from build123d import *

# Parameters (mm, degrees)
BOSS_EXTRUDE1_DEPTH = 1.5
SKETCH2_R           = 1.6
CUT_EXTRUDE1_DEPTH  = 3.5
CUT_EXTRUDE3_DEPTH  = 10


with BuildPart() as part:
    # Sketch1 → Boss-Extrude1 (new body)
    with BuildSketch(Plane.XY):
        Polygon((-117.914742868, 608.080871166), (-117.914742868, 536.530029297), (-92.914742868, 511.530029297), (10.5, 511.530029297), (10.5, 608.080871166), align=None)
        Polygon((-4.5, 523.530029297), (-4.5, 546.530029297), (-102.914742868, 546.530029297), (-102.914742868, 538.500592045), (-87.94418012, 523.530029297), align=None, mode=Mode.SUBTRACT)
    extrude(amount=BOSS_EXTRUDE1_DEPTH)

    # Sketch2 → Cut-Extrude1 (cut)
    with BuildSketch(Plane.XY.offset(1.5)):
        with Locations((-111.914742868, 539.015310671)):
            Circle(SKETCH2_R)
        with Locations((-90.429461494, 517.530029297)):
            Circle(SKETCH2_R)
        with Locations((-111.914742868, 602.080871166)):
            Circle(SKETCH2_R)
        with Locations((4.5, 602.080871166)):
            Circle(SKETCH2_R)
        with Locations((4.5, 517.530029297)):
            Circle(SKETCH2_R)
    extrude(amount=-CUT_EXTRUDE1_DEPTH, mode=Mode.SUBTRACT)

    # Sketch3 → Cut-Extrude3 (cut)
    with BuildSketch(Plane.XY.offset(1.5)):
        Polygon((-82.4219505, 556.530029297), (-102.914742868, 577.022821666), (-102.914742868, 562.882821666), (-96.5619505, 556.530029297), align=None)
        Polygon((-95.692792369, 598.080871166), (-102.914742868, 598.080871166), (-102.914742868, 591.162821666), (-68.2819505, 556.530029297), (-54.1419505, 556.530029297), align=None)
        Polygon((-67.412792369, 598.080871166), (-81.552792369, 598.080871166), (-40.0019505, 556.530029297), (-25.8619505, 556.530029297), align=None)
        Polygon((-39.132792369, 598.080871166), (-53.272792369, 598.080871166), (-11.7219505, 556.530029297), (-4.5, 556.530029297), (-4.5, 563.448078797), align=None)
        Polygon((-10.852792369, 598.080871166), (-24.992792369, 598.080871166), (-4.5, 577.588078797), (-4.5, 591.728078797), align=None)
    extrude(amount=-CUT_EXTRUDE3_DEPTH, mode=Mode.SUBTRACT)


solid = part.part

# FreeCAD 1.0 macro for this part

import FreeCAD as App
import Part
import Sketcher
from FreeCAD import Vector
Q = App.Units.Quantity


def add_polygon(sketch, points):
    """Adds a closed chain of lines whose ends are joined by coincident constraints."""
    first, n = sketch.GeometryCount, len(points)
    for a, b in zip(points, points[1:] + points[:1]):
        sketch.addGeometry(Part.LineSegment(App.Vector(*a, 0), App.Vector(*b, 0)), False)
    for i in range(n):
        sketch.addConstraint(Sketcher.Constraint("Coincident", first + i, 2, first + (i + 1) % n, 1))

doc = App.newDocument("Part")
body = doc.addObject("PartDesign::Body", "Body")

sketch1 = body.newObject("Sketcher::SketchObject", "Sketch")
sketch1.AttachmentSupport = (doc.getObject("XY_Plane"), [""])
sketch1.MapMode = "FlatFace"
add_polygon(sketch1, [(-118, 608), (-118, 537), (-93, 512), (10, 512), (10, 608)])
add_polygon(sketch1, [(-4, 547), (-4, 524), (-88, 524), (-103, 539), (-103, 547)])
sketch1.addConstraint(Sketcher.Constraint("Vertical", 0))
sketch1.addConstraint(Sketcher.Constraint("Horizontal", 2))
sketch1.addConstraint(Sketcher.Constraint("Vertical", 3))
sketch1.addConstraint(Sketcher.Constraint("Horizontal", 4))
sketch1.addConstraint(Sketcher.Constraint("Vertical", 5))
sketch1.addConstraint(Sketcher.Constraint("Horizontal", 6))
sketch1.addConstraint(Sketcher.Constraint("Vertical", 8))
sketch1.addConstraint(Sketcher.Constraint("Horizontal", 9))
sketch1.addConstraint(Sketcher.Constraint("Parallel", 1, 7))
sketch1.addConstraint(Sketcher.Constraint("DistanceY", 5, 2, 5, 1, 23.0))
sketch1.addConstraint(Sketcher.Constraint("Angle", 1, Q("-45 deg")))
sketch1.addConstraint(Sketcher.Constraint("DistanceX", 0, 2, 1, 2, 25.0))
sketch1.addConstraint(Sketcher.Constraint("DistanceX", 5, 2, 2, 2, 15.0))
sketch1.addConstraint(Sketcher.Constraint("DistanceY", 2, 2, 5, 2, 12.0))
sketch1.addConstraint(Sketcher.Constraint("DistanceX", 0, 2, 7, 2, 15.0))
sketch1.addConstraint(Sketcher.Constraint("DistanceX", -1, 1, 2, 2, 10.5))
sketch1.addConstraint(Sketcher.Constraint("DistanceX", 6, 2, 6, 1, 83.44418))
sketch1.addConstraint(Sketcher.Constraint("DistanceY", 0, 2, 0, 1, 71.550842))
sketch1.addConstraint(Sketcher.Constraint("DistanceX", 2, 1, 2, 2, 103.414743))
sketch1.addConstraint(Sketcher.Constraint("DistanceY", -1, 1, 0, 2, 536.530029))
pad1 = body.newObject("PartDesign::Pad", "Pad")
pad1.Profile = sketch1
pad1.Length = 1.5

sketch2 = body.newObject("Sketcher::SketchObject", "Sketch001")
sketch2.AttachmentSupport = (doc.getObject("XY_Plane"), [""])
sketch2.MapMode = "FlatFace"
sketch2.AttachmentOffset = App.Placement(Vector(0, 0, 1.5), App.Rotation())
sketch2.addGeometry(Part.Circle(Vector(-111.9, 539, 0), Vector(0, 0, 1), 1.6), False)
sketch2.addGeometry(Part.Circle(Vector(-90.4, 517.5, 0), Vector(0, 0, 1), 1.6), False)
sketch2.addGeometry(Part.Circle(Vector(-111.9, 602.1, 0), Vector(0, 0, 1), 1.6), False)
sketch2.addGeometry(Part.Circle(Vector(4.5, 602.1, 0), Vector(0, 0, 1), 1.6), False)
sketch2.addGeometry(Part.Circle(Vector(4.5, 517.5, 0), Vector(0, 0, 1), 1.6), False)
sketch2.addConstraint(Sketcher.Constraint("Equal", 0, 1))
sketch2.addConstraint(Sketcher.Constraint("Equal", 1, 2))
sketch2.addConstraint(Sketcher.Constraint("Equal", 2, 3))
sketch2.addConstraint(Sketcher.Constraint("Equal", 3, 4))
sketch2.addConstraint(Sketcher.Constraint("Horizontal", 2, 3, 3, 3))
sketch2.addConstraint(Sketcher.Constraint("Horizontal", 1, 3, 4, 3))
sketch2.addConstraint(Sketcher.Constraint("Vertical", 0, 3, 2, 3))
sketch2.addConstraint(Sketcher.Constraint("Vertical", 3, 3, 4, 3))
sketch2.addConstraint(Sketcher.Constraint("Diameter", 0, 3.2))
sketch2.addConstraint(Sketcher.Constraint("DistanceX", -1, 1, 3, 3, 4.5))
sketch2.addConstraint(Sketcher.Constraint("DistanceY", -1, 1, 0, 3, 539.015311))
sketch2.addConstraint(Sketcher.Constraint("DistanceX", 1, 3, -1, 1, 90.429461))
sketch2.addConstraint(Sketcher.Constraint("DistanceY", -1, 1, 1, 3, 517.530029))
sketch2.addConstraint(Sketcher.Constraint("DistanceY", -1, 1, 2, 3, 602.080871))
sketch2.addConstraint(Sketcher.Constraint("DistanceX", 0, 3, 1, 3, 21.485281))
pocket1 = body.newObject("PartDesign::Pocket", "Pocket")
pocket1.Profile = sketch2
pocket1.Length = 3.5

sketch3 = body.newObject("Sketcher::SketchObject", "Sketch002")
sketch3.AttachmentSupport = (doc.getObject("XY_Plane"), [""])
sketch3.MapMode = "FlatFace"
sketch3.AttachmentOffset = App.Placement(Vector(0, 0, 1.5), App.Rotation())
add_polygon(sketch3, [(-82, 557), (-103, 577), (-103, 563), (-97, 557)])
add_polygon(sketch3, [(-96, 598), (-103, 598), (-103, 591), (-68, 557), (-54, 557)])
add_polygon(sketch3, [(-67, 598), (-82, 598), (-40, 557), (-26, 557)])
add_polygon(sketch3, [(-39, 598), (-53, 598), (-12, 557), (-4, 557), (-4, 563)])
add_polygon(sketch3, [(-11, 598), (-25, 598), (-4, 578), (-4, 592)])
sketch3.addConstraint(Sketcher.Constraint("Vertical", 1))
sketch3.addConstraint(Sketcher.Constraint("Horizontal", 3))
sketch3.addConstraint(Sketcher.Constraint("Horizontal", 4))
sketch3.addConstraint(Sketcher.Constraint("Vertical", 5))
sketch3.addConstraint(Sketcher.Constraint("Horizontal", 7))
sketch3.addConstraint(Sketcher.Constraint("Horizontal", 9))
sketch3.addConstraint(Sketcher.Constraint("Horizontal", 11))
sketch3.addConstraint(Sketcher.Constraint("Horizontal", 13))
sketch3.addConstraint(Sketcher.Constraint("Horizontal", 15))
sketch3.addConstraint(Sketcher.Constraint("Vertical", 16))
sketch3.addConstraint(Sketcher.Constraint("Horizontal", 18))
sketch3.addConstraint(Sketcher.Constraint("Vertical", 20))
sketch3.addConstraint(Sketcher.Constraint("Parallel", 0, 2))
sketch3.addConstraint(Sketcher.Constraint("Parallel", 2, 6))
sketch3.addConstraint(Sketcher.Constraint("Parallel", 6, 8))
sketch3.addConstraint(Sketcher.Constraint("Parallel", 8, 10))
sketch3.addConstraint(Sketcher.Constraint("Parallel", 10, 12))
sketch3.addConstraint(Sketcher.Constraint("Parallel", 12, 14))
sketch3.addConstraint(Sketcher.Constraint("Parallel", 14, 17))
sketch3.addConstraint(Sketcher.Constraint("Parallel", 17, 19))
sketch3.addConstraint(Sketcher.Constraint("Parallel", 19, 21))
sketch3.addConstraint(Sketcher.Constraint("Horizontal", 3, 2, 6, 2))
sketch3.addConstraint(Sketcher.Constraint("Horizontal", 8, 2, 9, 2))
sketch3.addConstraint(Sketcher.Constraint("Horizontal", 7, 2, 10, 2))
sketch3.addConstraint(Sketcher.Constraint("Horizontal", 12, 2, 13, 2))
sketch3.addConstraint(Sketcher.Constraint("Horizontal", 11, 2, 14, 2))
sketch3.addConstraint(Sketcher.Constraint("Horizontal", 17, 2, 18, 2))
sketch3.addConstraint(Sketcher.Constraint("Vertical", 1, 2, 4, 2))
sketch3.addConstraint(Sketcher.Constraint("Vertical", 16, 2, 19, 2))
sketch3.addConstraint(Sketcher.Constraint("Equal", 3, 7))
sketch3.addConstraint(Sketcher.Constraint("Equal", 7, 9))
sketch3.addConstraint(Sketcher.Constraint("Equal", 11, 13))
sketch3.addConstraint(Sketcher.Constraint("Equal", 4, 15))
sketch3.addConstraint(Sketcher.Constraint("Equal", 13, 18))
sketch3.addConstraint(Sketcher.Constraint("Equal", 18, 1))
sketch3.addConstraint(Sketcher.Constraint("Equal", 0, 19))
sketch3.addConstraint(Sketcher.Constraint("DistanceX", 3, 1, 3, 2, 14.14))
sketch3.addConstraint(Sketcher.Constraint("DistanceX", 15, 2, -1, 1, 4.5))
sketch3.addConstraint(Sketcher.Constraint("DistanceY", 0, 2, 5, 2, 14.14))
sketch3.addConstraint(Sketcher.Constraint("DistanceX", 8, 2, 9, 2, 14.14))
sketch3.addConstraint(Sketcher.Constraint("DistanceX", 12, 2, 13, 2, 14.14))
sketch3.addConstraint(Sketcher.Constraint("DistanceX", 4, 2, 4, 1, 7.22195))
sketch3.addConstraint(Sketcher.Constraint("DistanceY", -1, 1, 0, 2, 577.022822))
sketch3.addConstraint(Sketcher.Constraint("DistanceY", -1, 1, 2, 2, 556.530029))
pocket2 = body.newObject("PartDesign::Pocket", "Pocket001")
pocket2.Profile = sketch3
pocket2.Length = 10

doc.recompute()
